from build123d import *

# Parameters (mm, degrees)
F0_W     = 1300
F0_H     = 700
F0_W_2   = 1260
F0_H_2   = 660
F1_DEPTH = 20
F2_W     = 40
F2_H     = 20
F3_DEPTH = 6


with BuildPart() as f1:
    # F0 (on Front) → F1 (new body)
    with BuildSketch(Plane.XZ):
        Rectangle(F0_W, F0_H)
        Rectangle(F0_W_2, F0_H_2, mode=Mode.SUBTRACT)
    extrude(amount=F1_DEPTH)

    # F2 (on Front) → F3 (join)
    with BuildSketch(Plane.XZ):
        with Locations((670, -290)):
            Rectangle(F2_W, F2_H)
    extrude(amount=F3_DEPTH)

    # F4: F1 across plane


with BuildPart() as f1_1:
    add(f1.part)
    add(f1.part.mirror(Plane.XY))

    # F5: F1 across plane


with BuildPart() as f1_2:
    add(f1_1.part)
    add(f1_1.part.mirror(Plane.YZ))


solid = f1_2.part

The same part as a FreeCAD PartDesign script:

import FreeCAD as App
import Part
import Sketcher
from FreeCAD import Vector
Q = App.Units.Quantity


def add_polygon(sketch, points):
    """Adds a closed chain of lines whose ends are joined by coincident constraints."""
    first, n = sketch.GeometryCount, len(points)
    for a, b in zip(points, points[1:] + points[:1]):
        sketch.addGeometry(Part.LineSegment(App.Vector(*a, 0), App.Vector(*b, 0)), False)
    for i in range(n):
        sketch.addConstraint(Sketcher.Constraint("Coincident", first + i, 2, first + (i + 1) % n, 1))

doc = App.newDocument("Part")
body = doc.addObject("PartDesign::Body", "Body")

# Sketch on XZ plane
sketch1 = body.newObject("Sketcher::SketchObject", "Sketch")
sketch1.AttachmentSupport = (doc.getObject("XZ_Plane"), [""])
sketch1.MapMode = "FlatFace"
add_polygon(sketch1, [(-650, 350), (-650, -350), (650, -350), (650, 350)])  # lines 0-3
add_polygon(sketch1, [(630, -330), (-630, -330), (-630, 330), (630, 330)])  # lines 4-7
sketch1.addConstraint([
    Sketcher.Constraint("Vertical", 0),
    Sketcher.Constraint("Horizontal", 1),
    Sketcher.Constraint("Vertical", 2),
    Sketcher.Constraint("Horizontal", 3),
    Sketcher.Constraint("Horizontal", 4),
    Sketcher.Constraint("Vertical", 5),
    Sketcher.Constraint("Horizontal", 6),
    Sketcher.Constraint("Vertical", 7),
    Sketcher.Constraint("Symmetric", 0, 2, 2, 2, -1, 1),
    Sketcher.Constraint("Symmetric", 4, 2, 6, 2, -1, 1),
    Sketcher.Constraint("DistanceX", 1, 1, 1, 2, Q("1300 mm")),
    Sketcher.Constraint("DistanceX", 4, 2, 4, 1, Q("1260 mm")),
    Sketcher.Constraint("DistanceY", 0, 2, 0, 1, Q("700 mm")),
    Sketcher.Constraint("DistanceY", 5, 1, 5, 2, Q("660 mm")),
])
pad1 = body.newObject("PartDesign::Pad", "Pad")
pad1.Profile = sketch1
pad1.Length = 20

# Sketch on XZ plane
sketch2 = body.newObject("Sketcher::SketchObject", "Sketch001")
sketch2.AttachmentSupport = (doc.getObject("XZ_Plane"), [""])
sketch2.MapMode = "FlatFace"
add_polygon(sketch2, [(650, -280), (650, -300), (690, -300), (690, -280)])  # lines 0-3
sketch2.addConstraint([
    Sketcher.Constraint("Vertical", 0),
    Sketcher.Constraint("Horizontal", 1),
    Sketcher.Constraint("Vertical", 2),
    Sketcher.Constraint("Horizontal", 3),
    Sketcher.Constraint("DistanceX", 1, 1, 1, 2, Q("40 mm")),
    Sketcher.Constraint("DistanceY", 0, 2, 0, 1, Q("20 mm")),
    Sketcher.Constraint("DistanceX", -1, 1, 0, 2, Q("650 mm")),
    Sketcher.Constraint("DistanceY", 0, 2, -1, 1, Q("300 mm")),
])
pad2 = body.newObject("PartDesign::Pad", "Pad001")
pad2.Profile = sketch2
pad2.Length = 6
body2 = doc.addObject("PartDesign::Body", "Body001")
doc.recompute()

body2.BaseFeature = body
doc.recompute()

mirroring = doc.addObject("Part::Mirroring", "Mirroring")
mirroring.Source = body
mirroring.Base = Vector(0, 0, 0)
mirroring.Normal = Vector(0, 0, 1)
body3 = doc.addObject("PartDesign::Body", "Body002")
body3.BaseFeature = mirroring
boolean = body2.newObject("PartDesign::Boolean", "Boolean")
boolean.Type = "Fuse"
boolean.addObjects([body3])
doc.recompute()
body4 = doc.addObject("PartDesign::Body", "Body003")
doc.recompute()

body4.BaseFeature = body2
doc.recompute()

mirroring2 = doc.addObject("Part::Mirroring", "Mirroring001")
mirroring2.Source = body2
mirroring2.Base = Vector(0, 0, 0)
mirroring2.Normal = Vector(1, 0, 0)
body5 = doc.addObject("PartDesign::Body", "Body004")
body5.BaseFeature = mirroring2
boolean2 = body4.newObject("PartDesign::Boolean", "Boolean001")
boolean2.Type = "Fuse"
boolean2.addObjects([body5])
doc.recompute()
mirroring.Visibility = False
mirroring2.Visibility = False

doc.recompute()
